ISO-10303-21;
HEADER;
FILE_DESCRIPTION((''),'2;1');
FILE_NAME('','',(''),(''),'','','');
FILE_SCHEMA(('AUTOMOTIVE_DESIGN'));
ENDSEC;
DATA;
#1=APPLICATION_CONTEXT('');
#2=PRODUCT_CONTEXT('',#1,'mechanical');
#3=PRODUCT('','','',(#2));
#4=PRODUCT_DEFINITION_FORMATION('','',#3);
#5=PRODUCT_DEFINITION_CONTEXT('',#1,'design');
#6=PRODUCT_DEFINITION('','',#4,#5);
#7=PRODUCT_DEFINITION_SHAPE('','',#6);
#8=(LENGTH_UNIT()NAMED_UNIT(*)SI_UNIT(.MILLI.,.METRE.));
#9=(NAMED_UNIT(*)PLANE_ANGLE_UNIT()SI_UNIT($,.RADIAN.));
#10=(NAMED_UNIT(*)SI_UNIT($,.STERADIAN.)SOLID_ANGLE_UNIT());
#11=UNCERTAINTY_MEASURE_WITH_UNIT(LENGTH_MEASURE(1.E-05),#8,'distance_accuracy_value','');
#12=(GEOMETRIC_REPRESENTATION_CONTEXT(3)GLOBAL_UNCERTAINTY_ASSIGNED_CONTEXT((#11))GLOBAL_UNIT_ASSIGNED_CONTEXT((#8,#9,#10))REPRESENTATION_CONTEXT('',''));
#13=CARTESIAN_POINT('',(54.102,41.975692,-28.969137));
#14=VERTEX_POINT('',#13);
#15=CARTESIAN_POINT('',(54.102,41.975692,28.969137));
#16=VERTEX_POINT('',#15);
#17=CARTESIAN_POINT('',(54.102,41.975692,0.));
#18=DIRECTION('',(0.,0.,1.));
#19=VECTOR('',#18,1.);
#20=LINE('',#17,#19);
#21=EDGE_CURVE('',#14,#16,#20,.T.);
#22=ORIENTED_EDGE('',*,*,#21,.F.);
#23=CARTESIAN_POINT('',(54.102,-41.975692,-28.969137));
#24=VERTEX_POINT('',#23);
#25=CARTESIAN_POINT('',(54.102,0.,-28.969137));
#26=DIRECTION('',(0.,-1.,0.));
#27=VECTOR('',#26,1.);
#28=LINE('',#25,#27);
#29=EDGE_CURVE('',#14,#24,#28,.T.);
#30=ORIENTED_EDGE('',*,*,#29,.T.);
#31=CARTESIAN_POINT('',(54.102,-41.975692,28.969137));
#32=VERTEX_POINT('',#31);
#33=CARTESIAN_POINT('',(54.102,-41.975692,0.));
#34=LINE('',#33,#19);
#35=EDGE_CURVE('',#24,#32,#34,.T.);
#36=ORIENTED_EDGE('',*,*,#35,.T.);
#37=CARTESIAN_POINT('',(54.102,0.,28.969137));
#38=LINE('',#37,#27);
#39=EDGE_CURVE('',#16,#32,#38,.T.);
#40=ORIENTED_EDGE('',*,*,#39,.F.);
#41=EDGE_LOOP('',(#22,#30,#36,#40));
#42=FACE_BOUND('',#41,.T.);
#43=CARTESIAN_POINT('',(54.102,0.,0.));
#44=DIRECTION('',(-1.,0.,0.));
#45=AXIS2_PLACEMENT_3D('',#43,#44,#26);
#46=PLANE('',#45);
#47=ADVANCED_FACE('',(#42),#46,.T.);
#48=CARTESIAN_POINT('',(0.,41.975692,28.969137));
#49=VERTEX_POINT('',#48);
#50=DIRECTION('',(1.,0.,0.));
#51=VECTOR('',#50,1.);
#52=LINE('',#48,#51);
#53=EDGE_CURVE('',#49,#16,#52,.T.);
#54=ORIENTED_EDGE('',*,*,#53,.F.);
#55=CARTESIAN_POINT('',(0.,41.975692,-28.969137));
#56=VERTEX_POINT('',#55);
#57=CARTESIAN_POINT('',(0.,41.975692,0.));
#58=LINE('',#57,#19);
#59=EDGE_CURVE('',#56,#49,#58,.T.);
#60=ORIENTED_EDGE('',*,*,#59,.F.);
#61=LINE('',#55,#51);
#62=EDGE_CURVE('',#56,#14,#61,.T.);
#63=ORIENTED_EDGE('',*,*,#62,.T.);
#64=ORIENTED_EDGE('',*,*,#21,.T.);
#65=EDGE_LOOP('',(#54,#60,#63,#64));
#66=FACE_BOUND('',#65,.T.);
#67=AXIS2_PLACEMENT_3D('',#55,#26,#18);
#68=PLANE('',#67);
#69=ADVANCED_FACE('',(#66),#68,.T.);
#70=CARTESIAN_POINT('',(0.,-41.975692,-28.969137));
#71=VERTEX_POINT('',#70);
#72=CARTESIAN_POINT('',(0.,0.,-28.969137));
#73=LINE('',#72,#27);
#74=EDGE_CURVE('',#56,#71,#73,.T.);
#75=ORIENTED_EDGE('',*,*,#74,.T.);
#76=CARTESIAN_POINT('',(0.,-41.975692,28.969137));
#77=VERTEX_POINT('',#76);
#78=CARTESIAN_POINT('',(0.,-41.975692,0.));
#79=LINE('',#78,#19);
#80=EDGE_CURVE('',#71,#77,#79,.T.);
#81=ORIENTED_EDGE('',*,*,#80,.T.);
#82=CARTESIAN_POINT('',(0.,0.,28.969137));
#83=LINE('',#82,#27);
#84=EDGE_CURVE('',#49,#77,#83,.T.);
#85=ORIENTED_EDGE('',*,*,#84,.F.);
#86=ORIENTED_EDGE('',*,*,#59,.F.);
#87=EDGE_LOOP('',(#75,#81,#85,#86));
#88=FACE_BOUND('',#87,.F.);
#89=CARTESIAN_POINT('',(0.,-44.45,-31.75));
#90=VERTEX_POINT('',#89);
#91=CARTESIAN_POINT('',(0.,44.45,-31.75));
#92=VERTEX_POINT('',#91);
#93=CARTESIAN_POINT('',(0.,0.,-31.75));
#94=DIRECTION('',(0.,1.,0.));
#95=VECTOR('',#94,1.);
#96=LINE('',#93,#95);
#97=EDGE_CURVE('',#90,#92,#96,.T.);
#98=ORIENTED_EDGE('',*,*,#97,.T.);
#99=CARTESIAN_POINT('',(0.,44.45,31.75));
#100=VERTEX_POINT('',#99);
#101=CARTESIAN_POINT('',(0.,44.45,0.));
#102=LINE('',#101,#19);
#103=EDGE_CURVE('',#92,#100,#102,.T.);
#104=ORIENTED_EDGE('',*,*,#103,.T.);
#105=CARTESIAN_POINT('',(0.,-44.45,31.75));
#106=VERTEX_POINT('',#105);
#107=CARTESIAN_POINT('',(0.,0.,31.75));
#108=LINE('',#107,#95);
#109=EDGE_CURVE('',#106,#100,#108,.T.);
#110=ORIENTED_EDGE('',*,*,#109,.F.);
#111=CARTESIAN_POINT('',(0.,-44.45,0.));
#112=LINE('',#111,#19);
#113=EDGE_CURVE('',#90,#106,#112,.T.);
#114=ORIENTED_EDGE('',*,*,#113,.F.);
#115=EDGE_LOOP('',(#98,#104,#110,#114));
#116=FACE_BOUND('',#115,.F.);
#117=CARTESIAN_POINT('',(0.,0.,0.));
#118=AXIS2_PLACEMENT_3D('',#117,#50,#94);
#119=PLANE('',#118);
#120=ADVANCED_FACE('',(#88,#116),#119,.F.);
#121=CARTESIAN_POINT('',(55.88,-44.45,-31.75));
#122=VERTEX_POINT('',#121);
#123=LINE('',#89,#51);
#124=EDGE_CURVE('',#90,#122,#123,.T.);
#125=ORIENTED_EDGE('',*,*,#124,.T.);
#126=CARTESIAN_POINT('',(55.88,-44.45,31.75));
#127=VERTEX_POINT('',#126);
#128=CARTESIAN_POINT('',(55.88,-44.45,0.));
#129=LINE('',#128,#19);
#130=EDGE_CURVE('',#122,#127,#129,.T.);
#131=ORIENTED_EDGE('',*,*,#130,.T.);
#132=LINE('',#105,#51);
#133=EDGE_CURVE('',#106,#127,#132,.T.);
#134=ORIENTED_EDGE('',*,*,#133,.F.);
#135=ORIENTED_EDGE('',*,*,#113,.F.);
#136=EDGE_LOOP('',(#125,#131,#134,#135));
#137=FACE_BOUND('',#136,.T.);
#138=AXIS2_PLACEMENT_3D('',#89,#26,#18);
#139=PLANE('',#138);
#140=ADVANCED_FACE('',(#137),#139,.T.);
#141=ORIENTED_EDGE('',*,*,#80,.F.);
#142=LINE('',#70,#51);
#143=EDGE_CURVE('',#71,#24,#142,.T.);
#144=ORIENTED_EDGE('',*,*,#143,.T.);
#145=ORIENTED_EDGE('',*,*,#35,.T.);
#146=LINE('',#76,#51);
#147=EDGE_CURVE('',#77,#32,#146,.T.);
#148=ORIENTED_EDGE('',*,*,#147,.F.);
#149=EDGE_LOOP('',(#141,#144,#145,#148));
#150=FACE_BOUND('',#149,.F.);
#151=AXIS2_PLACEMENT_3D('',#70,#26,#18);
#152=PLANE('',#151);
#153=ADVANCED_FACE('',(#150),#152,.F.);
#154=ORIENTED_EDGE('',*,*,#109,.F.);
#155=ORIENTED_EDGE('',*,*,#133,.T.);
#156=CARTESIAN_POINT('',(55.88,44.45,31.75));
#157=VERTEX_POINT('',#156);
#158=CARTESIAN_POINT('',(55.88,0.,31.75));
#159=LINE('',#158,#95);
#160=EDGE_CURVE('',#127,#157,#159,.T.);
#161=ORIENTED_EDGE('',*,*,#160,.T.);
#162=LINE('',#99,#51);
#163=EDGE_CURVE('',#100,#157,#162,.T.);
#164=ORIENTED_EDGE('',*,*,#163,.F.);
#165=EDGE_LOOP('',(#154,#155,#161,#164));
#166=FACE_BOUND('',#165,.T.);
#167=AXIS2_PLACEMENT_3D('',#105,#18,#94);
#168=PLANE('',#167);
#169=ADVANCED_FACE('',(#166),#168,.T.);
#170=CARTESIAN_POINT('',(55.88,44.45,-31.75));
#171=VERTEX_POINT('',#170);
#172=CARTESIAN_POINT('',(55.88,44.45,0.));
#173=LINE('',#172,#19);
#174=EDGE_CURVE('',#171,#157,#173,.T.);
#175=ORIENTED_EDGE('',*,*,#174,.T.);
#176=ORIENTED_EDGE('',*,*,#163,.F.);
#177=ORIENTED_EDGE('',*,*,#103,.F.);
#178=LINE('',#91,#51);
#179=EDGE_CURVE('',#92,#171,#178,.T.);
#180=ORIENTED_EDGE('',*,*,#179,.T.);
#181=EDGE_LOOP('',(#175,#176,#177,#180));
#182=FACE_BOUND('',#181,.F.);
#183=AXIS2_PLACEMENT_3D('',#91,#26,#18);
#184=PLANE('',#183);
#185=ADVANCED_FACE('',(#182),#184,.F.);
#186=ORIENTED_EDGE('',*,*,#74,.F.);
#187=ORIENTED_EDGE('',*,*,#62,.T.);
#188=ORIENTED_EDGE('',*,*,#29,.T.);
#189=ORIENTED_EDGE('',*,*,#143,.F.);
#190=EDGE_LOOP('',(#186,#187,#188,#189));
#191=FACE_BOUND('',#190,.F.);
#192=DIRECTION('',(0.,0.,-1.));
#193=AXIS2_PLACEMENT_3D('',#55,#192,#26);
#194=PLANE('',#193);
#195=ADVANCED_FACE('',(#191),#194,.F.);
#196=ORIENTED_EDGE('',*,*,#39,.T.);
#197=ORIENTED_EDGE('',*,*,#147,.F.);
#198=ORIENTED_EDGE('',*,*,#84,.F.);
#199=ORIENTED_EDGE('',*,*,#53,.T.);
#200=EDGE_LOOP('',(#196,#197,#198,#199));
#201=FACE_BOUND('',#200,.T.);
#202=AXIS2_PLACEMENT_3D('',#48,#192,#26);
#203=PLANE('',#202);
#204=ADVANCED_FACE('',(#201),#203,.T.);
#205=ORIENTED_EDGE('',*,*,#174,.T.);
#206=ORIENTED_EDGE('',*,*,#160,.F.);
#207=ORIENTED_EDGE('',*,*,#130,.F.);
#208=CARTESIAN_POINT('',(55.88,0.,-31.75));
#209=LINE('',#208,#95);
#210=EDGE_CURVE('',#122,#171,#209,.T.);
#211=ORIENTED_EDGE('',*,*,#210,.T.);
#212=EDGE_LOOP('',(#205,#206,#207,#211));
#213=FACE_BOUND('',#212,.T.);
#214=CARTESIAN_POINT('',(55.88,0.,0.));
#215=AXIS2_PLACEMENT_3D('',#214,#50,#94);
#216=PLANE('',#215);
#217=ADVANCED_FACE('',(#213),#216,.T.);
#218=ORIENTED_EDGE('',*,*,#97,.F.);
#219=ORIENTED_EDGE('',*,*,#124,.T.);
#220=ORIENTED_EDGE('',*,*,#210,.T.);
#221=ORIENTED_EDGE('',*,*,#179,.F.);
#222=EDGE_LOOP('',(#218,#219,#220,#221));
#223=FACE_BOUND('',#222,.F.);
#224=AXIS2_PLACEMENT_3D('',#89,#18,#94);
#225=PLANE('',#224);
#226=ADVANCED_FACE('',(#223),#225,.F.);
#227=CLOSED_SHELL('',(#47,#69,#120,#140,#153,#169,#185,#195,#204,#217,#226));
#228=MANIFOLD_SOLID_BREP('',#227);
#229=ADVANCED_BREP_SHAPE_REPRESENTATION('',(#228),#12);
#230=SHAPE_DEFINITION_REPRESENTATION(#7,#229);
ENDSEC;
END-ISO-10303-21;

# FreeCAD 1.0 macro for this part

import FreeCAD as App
import Part
import Sketcher
from FreeCAD import Vector
Q = App.Units.Quantity


def add_polygon(sketch, points):
    """Adds a closed chain of lines whose ends are joined by coincident constraints."""
    first, n = sketch.GeometryCount, len(points)
    for a, b in zip(points, points[1:] + points[:1]):
        sketch.addGeometry(Part.LineSegment(App.Vector(*a, 0), App.Vector(*b, 0)), False)
    for i in range(n):
        sketch.addConstraint(Sketcher.Constraint("Coincident", first + i, 2, first + (i + 1) % n, 1))

doc = App.newDocument("Part")
body = doc.addObject("PartDesign::Body", "Body")

# Sketch on YZ plane
sketch1 = doc.addObject("Sketcher::SketchObject", "Sketch")
body.addObject(sketch1)
sketch1.AttachmentSupport = (doc.YZ_Plane, [""])
sketch1.MapMode = "FlatFace"
add_polygon(sketch1, [(-44.45, 31.75), (-44.45, -31.75), (44.45, -31.75), (44.45, 31.75)])  # lines 0-3
sketch1.addConstraint([
    Sketcher.Constraint("Vertical", 0),
    Sketcher.Constraint("Horizontal", 1),
    Sketcher.Constraint("Vertical", 2),
    Sketcher.Constraint("Horizontal", 3),
    Sketcher.Constraint("Symmetric", 0, 2, 2, 2, -1, 1),
    Sketcher.Constraint("DistanceX", 1, 1, 1, 2, Q("3.5 in")),
    Sketcher.Constraint("DistanceY", 0, 2, 0, 1, Q("2.5 in")),
])
pad1 = doc.addObject("PartDesign::Pad", "Pad")
body.addObject(pad1)
pad1.Profile = sketch1
pad1.Length = Q("2.2 in")

# Sketch on YZ plane
sketch2 = doc.addObject("Sketcher::SketchObject", "Sketch001")
body.addObject(sketch2)
sketch2.AttachmentSupport = (doc.YZ_Plane, [""])
sketch2.MapMode = "FlatFace"
add_polygon(sketch2, [(41.975692, 28.969137), (41.975692, -28.969137), (-41.975692, -28.969137), (-41.975692, 28.969137)])  # lines 0-3
sketch2.addConstraint([
    Sketcher.Constraint("Vertical", 0),
    Sketcher.Constraint("Horizontal", 1),
    Sketcher.Constraint("Vertical", 2),
    Sketcher.Constraint("Horizontal", 3),
    Sketcher.Constraint("Symmetric", 0, 2, 2, 2, -1, 1),
    Sketcher.Constraint("DistanceX", 1, 2, 1, 1, Q("83.951384 mm")),
    Sketcher.Constraint("DistanceY", 0, 2, 0, 1, Q("57.938274 mm")),
])
pocket1 = doc.addObject("PartDesign::Pocket", "Pocket")
body.addObject(pocket1)
pocket1.Profile = sketch2
pocket1.Length = Q("2.13 in")
pocket1.Reversed = True

doc.recompute()
